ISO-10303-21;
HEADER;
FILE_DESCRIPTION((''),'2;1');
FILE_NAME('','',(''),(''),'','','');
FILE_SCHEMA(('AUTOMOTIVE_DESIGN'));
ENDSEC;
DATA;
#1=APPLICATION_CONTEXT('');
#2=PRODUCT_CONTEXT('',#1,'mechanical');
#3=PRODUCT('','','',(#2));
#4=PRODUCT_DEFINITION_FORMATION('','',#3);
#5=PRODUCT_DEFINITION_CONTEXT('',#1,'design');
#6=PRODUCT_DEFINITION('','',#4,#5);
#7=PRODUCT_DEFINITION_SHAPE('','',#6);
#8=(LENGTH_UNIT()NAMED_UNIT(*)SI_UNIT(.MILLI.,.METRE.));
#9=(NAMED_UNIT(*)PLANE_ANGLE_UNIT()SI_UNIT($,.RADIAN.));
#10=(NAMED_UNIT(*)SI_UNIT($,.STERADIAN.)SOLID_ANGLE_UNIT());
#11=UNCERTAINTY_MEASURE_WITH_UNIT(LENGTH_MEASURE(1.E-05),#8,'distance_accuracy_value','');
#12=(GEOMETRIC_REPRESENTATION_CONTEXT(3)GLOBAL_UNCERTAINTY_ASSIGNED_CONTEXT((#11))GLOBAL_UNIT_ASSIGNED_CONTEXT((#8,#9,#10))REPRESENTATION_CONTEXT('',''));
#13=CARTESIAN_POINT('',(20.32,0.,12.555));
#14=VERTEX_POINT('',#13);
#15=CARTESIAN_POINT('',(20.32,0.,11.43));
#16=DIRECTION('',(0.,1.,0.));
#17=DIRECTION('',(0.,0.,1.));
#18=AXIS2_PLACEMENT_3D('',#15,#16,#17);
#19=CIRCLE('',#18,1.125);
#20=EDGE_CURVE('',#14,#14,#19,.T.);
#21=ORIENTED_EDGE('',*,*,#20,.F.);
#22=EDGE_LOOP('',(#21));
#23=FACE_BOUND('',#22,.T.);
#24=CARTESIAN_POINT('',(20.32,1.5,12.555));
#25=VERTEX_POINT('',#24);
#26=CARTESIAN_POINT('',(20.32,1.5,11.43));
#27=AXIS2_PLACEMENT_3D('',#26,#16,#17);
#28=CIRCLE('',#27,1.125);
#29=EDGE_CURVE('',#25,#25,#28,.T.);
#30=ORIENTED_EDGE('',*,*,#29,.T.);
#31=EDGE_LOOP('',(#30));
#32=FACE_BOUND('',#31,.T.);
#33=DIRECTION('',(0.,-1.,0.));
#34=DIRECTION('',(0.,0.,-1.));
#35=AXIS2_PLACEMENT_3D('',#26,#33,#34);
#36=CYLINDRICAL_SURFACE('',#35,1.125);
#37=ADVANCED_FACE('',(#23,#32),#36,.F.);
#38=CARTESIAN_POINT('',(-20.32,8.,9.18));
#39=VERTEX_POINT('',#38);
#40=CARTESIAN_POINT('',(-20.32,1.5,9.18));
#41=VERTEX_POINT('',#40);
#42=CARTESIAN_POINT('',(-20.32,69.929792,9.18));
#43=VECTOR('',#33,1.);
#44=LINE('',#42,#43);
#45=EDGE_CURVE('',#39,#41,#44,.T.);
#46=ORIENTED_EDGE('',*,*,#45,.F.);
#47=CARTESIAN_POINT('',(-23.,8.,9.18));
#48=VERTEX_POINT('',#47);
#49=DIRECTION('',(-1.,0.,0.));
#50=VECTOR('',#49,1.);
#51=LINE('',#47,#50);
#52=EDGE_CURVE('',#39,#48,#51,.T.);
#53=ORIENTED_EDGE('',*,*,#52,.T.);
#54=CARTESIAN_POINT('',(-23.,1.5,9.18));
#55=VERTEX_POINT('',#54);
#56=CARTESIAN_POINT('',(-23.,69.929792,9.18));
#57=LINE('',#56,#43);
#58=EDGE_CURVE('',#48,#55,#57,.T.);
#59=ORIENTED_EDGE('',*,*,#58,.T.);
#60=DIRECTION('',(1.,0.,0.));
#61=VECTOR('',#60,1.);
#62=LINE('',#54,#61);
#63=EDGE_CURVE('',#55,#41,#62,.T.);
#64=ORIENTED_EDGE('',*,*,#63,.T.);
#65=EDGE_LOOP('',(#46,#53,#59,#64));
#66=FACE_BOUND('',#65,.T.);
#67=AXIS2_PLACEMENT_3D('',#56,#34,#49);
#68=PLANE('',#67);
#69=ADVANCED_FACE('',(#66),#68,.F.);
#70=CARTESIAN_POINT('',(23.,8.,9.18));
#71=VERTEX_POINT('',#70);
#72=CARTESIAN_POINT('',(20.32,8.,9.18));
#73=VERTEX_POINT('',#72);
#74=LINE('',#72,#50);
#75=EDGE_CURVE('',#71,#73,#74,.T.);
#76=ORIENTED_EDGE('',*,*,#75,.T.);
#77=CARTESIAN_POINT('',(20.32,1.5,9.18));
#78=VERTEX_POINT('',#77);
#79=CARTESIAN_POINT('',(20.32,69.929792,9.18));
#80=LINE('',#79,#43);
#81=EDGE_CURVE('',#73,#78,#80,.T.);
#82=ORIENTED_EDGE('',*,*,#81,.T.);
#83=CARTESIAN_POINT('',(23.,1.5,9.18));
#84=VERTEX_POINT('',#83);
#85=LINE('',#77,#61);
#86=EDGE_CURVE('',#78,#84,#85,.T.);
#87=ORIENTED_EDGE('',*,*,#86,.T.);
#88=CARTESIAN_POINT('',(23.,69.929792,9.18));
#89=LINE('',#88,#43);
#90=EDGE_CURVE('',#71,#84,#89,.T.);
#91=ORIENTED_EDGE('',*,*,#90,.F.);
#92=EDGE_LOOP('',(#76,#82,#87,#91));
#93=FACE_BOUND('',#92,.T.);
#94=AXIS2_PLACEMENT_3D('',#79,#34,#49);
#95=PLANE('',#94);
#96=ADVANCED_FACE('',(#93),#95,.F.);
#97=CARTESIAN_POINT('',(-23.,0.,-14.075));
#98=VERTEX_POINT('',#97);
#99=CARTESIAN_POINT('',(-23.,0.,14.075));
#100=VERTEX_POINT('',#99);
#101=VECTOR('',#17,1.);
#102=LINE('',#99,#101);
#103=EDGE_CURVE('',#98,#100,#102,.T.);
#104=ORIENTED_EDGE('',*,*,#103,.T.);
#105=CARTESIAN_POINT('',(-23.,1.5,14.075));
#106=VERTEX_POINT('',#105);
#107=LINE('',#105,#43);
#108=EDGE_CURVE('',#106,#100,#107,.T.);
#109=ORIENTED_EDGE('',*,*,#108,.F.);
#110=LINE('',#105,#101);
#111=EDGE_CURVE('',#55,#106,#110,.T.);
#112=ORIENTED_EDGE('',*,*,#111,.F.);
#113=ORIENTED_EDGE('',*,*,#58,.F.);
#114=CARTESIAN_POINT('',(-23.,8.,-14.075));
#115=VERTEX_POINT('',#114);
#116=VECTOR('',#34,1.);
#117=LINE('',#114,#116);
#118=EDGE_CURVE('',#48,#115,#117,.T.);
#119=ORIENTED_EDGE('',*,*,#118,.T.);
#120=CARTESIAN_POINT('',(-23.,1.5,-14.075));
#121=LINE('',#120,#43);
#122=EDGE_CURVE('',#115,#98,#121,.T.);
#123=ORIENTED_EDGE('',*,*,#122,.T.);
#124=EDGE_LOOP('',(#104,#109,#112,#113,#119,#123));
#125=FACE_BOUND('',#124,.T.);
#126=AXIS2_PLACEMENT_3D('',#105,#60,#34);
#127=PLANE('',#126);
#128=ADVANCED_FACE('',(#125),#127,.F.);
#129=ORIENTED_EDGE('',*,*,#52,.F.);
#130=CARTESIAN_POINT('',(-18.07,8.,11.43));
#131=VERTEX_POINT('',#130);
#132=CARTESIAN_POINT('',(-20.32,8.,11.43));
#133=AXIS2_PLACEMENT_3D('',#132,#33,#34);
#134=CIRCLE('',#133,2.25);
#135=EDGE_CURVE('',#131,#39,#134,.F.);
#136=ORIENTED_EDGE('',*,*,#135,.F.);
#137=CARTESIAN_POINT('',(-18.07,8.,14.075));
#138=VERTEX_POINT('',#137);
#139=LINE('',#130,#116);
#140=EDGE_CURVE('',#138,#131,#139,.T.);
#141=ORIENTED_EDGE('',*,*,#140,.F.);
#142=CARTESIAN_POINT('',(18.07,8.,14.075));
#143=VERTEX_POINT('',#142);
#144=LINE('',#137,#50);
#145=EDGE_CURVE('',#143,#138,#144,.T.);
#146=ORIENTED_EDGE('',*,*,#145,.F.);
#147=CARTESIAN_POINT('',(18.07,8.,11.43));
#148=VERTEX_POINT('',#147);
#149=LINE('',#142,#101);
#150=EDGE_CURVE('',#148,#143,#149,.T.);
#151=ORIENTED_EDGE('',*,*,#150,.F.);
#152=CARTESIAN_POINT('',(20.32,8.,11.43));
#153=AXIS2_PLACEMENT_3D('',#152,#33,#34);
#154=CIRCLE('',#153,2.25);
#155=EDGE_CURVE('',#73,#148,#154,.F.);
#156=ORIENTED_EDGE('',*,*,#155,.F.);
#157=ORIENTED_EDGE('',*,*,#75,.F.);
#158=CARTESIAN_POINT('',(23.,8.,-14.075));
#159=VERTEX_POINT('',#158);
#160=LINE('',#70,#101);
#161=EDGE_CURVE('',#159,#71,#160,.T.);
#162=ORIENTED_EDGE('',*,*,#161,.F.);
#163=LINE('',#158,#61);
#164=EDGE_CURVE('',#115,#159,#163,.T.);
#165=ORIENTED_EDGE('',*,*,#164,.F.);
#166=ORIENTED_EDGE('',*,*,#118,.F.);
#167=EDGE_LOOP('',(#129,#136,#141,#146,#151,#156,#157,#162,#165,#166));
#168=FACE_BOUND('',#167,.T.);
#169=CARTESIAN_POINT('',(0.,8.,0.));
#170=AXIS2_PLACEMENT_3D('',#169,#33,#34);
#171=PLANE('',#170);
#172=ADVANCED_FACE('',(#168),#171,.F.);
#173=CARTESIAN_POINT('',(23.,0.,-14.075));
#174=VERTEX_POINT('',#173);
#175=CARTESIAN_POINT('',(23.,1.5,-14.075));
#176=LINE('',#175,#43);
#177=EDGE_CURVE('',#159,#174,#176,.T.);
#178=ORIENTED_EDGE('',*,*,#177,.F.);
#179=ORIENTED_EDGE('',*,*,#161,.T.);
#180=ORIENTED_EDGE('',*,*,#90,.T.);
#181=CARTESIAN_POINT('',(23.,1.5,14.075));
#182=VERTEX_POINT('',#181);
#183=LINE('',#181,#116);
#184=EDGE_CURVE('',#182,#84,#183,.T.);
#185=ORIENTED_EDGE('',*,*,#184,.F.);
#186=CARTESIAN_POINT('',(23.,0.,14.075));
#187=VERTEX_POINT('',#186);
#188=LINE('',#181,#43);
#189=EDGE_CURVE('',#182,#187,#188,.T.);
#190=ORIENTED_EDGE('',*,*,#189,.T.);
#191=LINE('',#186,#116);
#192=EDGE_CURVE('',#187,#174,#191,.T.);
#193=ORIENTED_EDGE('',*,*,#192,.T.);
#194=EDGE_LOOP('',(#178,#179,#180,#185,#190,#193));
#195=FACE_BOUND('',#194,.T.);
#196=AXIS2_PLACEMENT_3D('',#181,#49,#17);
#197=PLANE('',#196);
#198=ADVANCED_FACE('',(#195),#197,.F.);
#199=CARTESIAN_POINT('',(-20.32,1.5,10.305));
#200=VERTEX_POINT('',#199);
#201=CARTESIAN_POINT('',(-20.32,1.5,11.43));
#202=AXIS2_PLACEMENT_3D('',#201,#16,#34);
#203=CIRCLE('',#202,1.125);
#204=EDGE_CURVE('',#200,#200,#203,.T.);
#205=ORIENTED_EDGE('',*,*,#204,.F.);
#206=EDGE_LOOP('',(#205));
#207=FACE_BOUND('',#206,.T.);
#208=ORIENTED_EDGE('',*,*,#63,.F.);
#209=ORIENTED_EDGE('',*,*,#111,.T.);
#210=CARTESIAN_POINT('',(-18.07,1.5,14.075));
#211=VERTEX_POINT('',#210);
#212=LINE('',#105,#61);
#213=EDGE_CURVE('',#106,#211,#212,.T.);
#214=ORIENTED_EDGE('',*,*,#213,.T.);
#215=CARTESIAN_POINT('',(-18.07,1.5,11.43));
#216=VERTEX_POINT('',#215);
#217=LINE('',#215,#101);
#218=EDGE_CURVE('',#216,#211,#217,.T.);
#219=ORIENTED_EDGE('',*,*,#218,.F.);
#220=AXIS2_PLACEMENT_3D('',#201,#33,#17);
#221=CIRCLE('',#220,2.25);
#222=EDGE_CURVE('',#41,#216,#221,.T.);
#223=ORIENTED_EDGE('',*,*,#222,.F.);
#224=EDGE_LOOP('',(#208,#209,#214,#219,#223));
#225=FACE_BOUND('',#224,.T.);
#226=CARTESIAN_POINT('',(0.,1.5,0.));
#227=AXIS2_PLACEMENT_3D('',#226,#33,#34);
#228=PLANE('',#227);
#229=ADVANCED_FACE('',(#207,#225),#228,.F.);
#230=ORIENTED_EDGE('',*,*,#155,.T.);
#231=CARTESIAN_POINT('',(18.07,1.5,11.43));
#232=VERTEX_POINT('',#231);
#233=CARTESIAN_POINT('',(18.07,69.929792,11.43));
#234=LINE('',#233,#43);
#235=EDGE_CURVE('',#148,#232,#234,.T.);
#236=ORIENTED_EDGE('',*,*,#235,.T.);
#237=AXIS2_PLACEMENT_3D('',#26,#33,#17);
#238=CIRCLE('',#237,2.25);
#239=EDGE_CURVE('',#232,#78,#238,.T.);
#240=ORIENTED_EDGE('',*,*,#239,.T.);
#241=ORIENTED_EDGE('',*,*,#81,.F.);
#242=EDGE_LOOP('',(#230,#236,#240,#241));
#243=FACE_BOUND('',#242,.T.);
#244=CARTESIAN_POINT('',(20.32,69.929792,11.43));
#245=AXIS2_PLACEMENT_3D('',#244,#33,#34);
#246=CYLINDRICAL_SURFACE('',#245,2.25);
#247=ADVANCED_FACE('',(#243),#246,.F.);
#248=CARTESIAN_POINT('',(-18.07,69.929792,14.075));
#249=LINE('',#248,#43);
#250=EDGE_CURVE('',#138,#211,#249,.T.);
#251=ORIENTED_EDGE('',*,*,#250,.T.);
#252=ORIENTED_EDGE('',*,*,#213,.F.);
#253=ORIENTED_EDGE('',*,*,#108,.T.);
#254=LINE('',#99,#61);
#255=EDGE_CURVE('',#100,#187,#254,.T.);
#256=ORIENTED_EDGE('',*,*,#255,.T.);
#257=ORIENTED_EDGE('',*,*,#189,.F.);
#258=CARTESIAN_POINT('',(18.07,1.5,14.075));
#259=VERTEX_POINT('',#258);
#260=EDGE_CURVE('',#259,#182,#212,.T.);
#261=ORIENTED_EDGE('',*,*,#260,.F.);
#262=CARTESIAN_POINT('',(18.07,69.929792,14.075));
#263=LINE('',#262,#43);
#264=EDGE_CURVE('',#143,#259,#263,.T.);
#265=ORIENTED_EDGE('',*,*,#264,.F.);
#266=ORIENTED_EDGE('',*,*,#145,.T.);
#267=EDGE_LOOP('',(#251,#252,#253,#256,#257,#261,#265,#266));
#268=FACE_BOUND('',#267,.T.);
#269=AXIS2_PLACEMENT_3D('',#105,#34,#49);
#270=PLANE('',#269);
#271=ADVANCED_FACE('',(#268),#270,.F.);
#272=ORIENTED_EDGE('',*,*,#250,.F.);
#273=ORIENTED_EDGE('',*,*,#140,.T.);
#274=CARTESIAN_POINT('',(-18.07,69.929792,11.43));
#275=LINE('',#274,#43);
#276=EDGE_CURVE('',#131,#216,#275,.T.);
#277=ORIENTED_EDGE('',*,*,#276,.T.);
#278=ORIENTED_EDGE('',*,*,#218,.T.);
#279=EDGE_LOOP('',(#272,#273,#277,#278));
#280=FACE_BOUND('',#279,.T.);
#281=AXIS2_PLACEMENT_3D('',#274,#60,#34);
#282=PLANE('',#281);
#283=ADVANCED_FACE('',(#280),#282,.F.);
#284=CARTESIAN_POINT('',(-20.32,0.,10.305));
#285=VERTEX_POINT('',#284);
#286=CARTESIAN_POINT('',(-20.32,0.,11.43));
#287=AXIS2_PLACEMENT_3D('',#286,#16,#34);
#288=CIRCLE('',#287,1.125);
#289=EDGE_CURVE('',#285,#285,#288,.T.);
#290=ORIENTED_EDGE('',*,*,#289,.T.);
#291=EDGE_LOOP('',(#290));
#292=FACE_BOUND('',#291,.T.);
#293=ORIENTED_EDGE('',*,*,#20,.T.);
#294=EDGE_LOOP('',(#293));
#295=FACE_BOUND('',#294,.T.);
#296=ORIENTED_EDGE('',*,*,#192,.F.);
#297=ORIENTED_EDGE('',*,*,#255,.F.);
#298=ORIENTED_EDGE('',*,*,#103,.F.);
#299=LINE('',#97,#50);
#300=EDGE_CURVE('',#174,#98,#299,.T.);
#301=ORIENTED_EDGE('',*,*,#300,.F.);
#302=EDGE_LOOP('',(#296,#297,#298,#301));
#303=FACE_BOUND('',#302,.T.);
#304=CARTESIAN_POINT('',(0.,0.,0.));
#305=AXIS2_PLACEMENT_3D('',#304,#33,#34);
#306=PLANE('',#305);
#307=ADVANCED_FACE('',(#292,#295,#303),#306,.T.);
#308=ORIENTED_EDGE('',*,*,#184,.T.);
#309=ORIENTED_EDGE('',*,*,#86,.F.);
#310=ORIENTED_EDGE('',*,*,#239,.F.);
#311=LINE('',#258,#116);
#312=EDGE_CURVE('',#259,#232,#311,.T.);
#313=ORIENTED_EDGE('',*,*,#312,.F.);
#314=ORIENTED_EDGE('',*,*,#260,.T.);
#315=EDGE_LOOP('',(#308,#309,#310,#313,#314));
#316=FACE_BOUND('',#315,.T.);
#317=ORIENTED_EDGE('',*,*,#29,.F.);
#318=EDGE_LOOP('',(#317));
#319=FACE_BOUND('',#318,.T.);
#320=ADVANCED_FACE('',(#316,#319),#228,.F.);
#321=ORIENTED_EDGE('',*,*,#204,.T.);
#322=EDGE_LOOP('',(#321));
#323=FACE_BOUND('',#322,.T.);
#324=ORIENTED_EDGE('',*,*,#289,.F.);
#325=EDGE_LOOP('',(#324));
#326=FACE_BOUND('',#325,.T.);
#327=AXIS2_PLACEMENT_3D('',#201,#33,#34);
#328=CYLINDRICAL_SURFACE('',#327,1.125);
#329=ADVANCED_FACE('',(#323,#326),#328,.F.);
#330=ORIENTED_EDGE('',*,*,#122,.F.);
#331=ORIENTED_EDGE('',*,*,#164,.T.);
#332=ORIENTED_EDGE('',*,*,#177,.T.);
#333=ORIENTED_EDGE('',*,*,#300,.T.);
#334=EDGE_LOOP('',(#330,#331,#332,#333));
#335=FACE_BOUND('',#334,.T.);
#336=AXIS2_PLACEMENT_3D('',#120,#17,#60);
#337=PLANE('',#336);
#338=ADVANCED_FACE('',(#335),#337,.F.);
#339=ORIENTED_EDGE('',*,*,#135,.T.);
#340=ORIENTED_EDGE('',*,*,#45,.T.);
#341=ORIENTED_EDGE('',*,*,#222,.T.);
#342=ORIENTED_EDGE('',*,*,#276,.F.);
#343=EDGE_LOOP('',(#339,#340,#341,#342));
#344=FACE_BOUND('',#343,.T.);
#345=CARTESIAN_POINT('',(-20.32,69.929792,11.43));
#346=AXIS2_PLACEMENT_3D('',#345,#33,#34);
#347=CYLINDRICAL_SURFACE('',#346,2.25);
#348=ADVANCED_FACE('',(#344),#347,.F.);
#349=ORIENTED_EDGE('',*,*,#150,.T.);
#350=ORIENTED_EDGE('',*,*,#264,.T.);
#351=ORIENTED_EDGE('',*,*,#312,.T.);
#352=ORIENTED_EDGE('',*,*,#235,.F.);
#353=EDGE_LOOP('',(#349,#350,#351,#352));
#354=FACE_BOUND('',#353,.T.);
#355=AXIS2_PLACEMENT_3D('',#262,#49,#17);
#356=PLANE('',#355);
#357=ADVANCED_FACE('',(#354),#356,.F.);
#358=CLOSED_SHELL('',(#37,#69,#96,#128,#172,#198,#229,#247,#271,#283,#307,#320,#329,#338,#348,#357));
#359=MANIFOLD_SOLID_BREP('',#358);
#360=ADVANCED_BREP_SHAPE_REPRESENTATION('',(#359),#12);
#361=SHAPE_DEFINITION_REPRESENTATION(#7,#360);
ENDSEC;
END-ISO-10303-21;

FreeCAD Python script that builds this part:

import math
import FreeCAD as App
import Part
import Sketcher

V = App.Vector
Q = App.Units.Quantity

doc = App.newDocument("Part")
body = doc.addObject("PartDesign::Body", "Body")

sketch1 = body.newObject("Sketcher::SketchObject", "Sketch")
sketch1.AttachmentSupport = (doc.getObject("XZ_Plane"), [""])
sketch1.MapMode = "FlatFace"
sketch1.addGeometry([
    Part.LineSegment(V(-23, -14.075, 0), V(-23, 14.075, 0)),
    Part.LineSegment(V(-23, 14.075, 0), V(23, 14.075, 0)),
    Part.LineSegment(V(23, 14.075, 0), V(23, -14.075, 0)),
    Part.LineSegment(V(23, -14.075, 0), V(-23, -14.075, 0)),
    Part.Circle(V(-20.32, 11.43, 0), V(0, 0, 1), 1.125),
    Part.Circle(V(20.32, 11.43, 0), V(0, 0, 1), 1.125),
], False)
sketch1.addConstraint([
    Sketcher.Constraint("Coincident", 0, 2, 1, 1),
    Sketcher.Constraint("Coincident", 1, 2, 2, 1),
    Sketcher.Constraint("Coincident", 2, 2, 3, 1),
    Sketcher.Constraint("Coincident", 3, 2, 0, 1),
    Sketcher.Constraint("Vertical", 0),
    Sketcher.Constraint("Horizontal", 1),
    Sketcher.Constraint("Vertical", 2),
    Sketcher.Constraint("Horizontal", 3),
    Sketcher.Constraint("Equal", 4, 5),
    Sketcher.Constraint("Symmetric", 0, 2, 2, 2, -1, 1),
    Sketcher.Constraint("Symmetric", 4, 3, 5, 3, -2),
    Sketcher.Constraint("Diameter", 4, Q("2.25 mm")),
    Sketcher.Constraint("DistanceX", 1, 1, 1, 2, Q("46 mm")),
    Sketcher.Constraint("DistanceY", 0, 1, 0, 2, Q("28.15 mm")),
    Sketcher.Constraint("DistanceX", 4, 3, -1, 1, Q("20.32 mm")),
    Sketcher.Constraint("DistanceY", -1, 1, 4, 3, Q("11.43 mm")),
])
pad1 = body.newObject("PartDesign::Pad", "Pad")
pad1.Profile = sketch1
pad1.Length = 1.5
pad1.Reversed = True

sketch2 = body.newObject("Sketcher::SketchObject", "Sketch001")
sketch2.AttachmentSupport = (doc.getObject("XZ_Plane"), [""])
sketch2.MapMode = "FlatFace"
sketch2.AttachmentOffset = App.Placement(V(0, 0, -1.5), App.Rotation())
sketch2.addGeometry([
    Part.LineSegment(V(-18.07, 11.43, 0), V(-18.07, 14.075, 0)),
    Part.LineSegment(V(-18.07, 14.075, 0), V(18.07, 14.075, 0)),
    Part.LineSegment(V(18.07, 14.075, 0), V(18.07, 11.43, 0)),
    Part.ArcOfCircle(Part.Circle(V(20.32, 11.43, 0), V(0, 0, 1), 2.25), math.radians(180), math.radians(270)),
    Part.LineSegment(V(20.32, 9.18, 0), V(23, 9.18, 0)),
    Part.LineSegment(V(23, 9.18, 0), V(23, -14.075, 0)),
    Part.LineSegment(V(23, -14.075, 0), V(-23, -14.075, 0)),
    Part.LineSegment(V(-23, -14.075, 0), V(-23, 9.18, 0)),
    Part.LineSegment(V(-23, 9.18, 0), V(-20.32, 9.18, 0)),
    Part.ArcOfCircle(Part.Circle(V(-20.32, 11.43, 0), V(0, 0, 1), 2.25), math.radians(-90), math.radians(0)),
], False)
sketch2.addConstraint([
    Sketcher.Constraint("Coincident", 0, 2, 1, 1),
    Sketcher.Constraint("Coincident", 1, 2, 2, 1),
    Sketcher.Constraint("Tangent", 2, 2, 3, 1),
    Sketcher.Constraint("Tangent", 3, 2, 4, 1),
    Sketcher.Constraint("Coincident", 4, 2, 5, 1),
    Sketcher.Constraint("Coincident", 5, 2, 6, 1),
    Sketcher.Constraint("Coincident", 6, 2, 7, 1),
    Sketcher.Constraint("Coincident", 7, 2, 8, 1),
    Sketcher.Constraint("Tangent", 8, 2, 9, 1),
    Sketcher.Constraint("Tangent", 9, 2, 0, 1),
    Sketcher.Constraint("Vertical", 0),
    Sketcher.Constraint("Horizontal", 1),
    Sketcher.Constraint("Vertical", 2),
    Sketcher.Constraint("Horizontal", 4),
    Sketcher.Constraint("Vertical", 5),
    Sketcher.Constraint("Horizontal", 6),
    Sketcher.Constraint("Vertical", 7),
    Sketcher.Constraint("Horizontal", 8),
    Sketcher.Constraint("Equal", 3, 9),
    Sketcher.Constraint("Symmetric", 3, 3, 9, 3, -2),
    Sketcher.Constraint("Equal", 4, 8),
    Sketcher.Constraint("DistanceX", 6, 2, 6, 1, Q("46 mm")),
    Sketcher.Constraint("Radius", 3, Q("2.25 mm")),
    Sketcher.Constraint("DistanceX", 1, 1, 1, 2, Q("36.14 mm")),
    Sketcher.Constraint("DistanceY", 0, 1, 0, 2, Q("2.645 mm")),
    Sketcher.Constraint("DistanceY", 5, 2, 5, 1, Q("23.255 mm")),
    Sketcher.Constraint("DistanceY", -1, 1, 3, 3, Q("11.43 mm")),
])
pad2 = body.newObject("PartDesign::Pad", "Pad001")
pad2.Profile = sketch2
pad2.Length = 6.5
pad2.Reversed = True

doc.recompute()
